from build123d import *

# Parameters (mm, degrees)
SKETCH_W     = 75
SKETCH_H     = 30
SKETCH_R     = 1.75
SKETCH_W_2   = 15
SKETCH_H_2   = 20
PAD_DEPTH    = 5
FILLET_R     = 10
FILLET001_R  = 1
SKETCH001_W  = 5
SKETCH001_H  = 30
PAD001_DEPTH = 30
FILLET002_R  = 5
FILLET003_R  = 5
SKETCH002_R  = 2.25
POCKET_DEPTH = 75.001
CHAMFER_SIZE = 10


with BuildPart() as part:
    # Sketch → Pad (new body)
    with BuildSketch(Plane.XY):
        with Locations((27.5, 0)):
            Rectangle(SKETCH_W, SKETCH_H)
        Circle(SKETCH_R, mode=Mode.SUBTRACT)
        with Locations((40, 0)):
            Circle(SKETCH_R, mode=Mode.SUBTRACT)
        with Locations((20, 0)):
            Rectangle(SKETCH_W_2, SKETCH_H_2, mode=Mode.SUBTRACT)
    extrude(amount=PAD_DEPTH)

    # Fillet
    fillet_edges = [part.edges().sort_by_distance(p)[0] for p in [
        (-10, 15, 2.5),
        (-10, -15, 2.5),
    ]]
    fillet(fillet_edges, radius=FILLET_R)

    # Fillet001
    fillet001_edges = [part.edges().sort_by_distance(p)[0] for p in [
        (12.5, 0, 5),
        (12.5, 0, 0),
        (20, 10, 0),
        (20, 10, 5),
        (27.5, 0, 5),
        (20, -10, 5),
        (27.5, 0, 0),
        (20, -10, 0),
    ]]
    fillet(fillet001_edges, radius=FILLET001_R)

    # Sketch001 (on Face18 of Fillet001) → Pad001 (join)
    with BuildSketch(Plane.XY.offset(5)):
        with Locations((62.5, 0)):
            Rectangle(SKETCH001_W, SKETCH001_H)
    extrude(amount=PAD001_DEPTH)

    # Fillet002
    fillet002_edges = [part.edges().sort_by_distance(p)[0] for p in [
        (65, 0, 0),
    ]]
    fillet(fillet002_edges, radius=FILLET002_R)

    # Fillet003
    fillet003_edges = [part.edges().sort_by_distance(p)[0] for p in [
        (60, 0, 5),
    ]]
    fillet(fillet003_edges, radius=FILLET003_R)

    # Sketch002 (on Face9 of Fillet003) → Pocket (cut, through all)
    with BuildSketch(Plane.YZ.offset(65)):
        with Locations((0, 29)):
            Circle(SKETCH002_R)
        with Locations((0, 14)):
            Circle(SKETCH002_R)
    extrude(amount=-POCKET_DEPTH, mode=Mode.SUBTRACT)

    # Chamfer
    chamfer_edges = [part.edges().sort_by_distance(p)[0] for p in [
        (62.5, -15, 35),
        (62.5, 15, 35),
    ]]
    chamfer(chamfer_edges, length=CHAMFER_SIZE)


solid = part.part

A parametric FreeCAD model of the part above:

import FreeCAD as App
import Part
import Sketcher
from FreeCAD import Vector
Q = App.Units.Quantity


def edges_at(feature, points):
    """Names of the edges that pass closest to the given points."""
    edges = feature.Shape.Edges
    near = lambda p: min(range(len(edges)), key=lambda i: edges[i].distToShape(Part.Vertex(*p))[0])
    return sorted({f"Edge{near(p) + 1}" for p in points})

doc = App.newDocument("Part")
params = doc.addObject("Spreadsheet::Sheet", "Params")
for row, (alias, value) in enumerate([
    ("sketch1_diameter", "3.5 mm"),
    ("sketch1_width", "75 mm"),
    ("sketch1_width2", "15 mm"),
    ("sketch1_height", "30 mm"),
    ("sketch1_height2", "20 mm"),
    ("pad1_length", "5 mm"),
    ("fillet_radius", "10 mm"),
    ("fillet2_radius", "1 mm"),
    ("sketch2_width", "5 mm"),
    ("sketch2_height", "30 mm"),
    ("pad2_length", "30 mm"),
    ("fillet3_radius", "5 mm"),
    ("fillet4_radius", "5 mm"),
    ("sketch3_diameter", "4.5 mm"),
    ("chamfer_size", "10 mm"),
], start=1):
    params.set(f"A{row}", alias)
    params.set(f"B{row}", "=" + value)
    params.setAlias(f"B{row}", alias)

body = doc.addObject("PartDesign::Body", "Body")

sketch1 = doc.addObject("Sketcher::SketchObject", "Sketch")
body.addObject(sketch1)
sketch1.AttachmentSupport = (doc.XY_Plane, [""])
sketch1.MapMode = "FlatFace"
sketch1.addGeometry([
    Part.LineSegment(Vector(-10, 15, 0), Vector(-10, -15, 0)),
    Part.LineSegment(Vector(-10, -15, 0), Vector(65, -15, 0)),
    Part.LineSegment(Vector(65, -15, 0), Vector(65, 15, 0)),
    Part.LineSegment(Vector(65, 15, 0), Vector(-10, 15, 0)),
    Part.Circle(Vector(0, 0, 0), Vector(0, 0, 1), 1.8),
    Part.LineSegment(Vector(27.5, -10, 0), Vector(12.5, -10, 0)),
    Part.LineSegment(Vector(12.5, -10, 0), Vector(12.5, 10, 0)),
    Part.LineSegment(Vector(12.5, 10, 0), Vector(27.5, 10, 0)),
    Part.LineSegment(Vector(27.5, 10, 0), Vector(27.5, -10, 0)),
    Part.Circle(Vector(40, 0, 0), Vector(0, 0, 1), 1.8),
], False)
sketch1.addConstraint([
    Sketcher.Constraint("Coincident", 0, 2, 1, 1),
    Sketcher.Constraint("Coincident", 1, 2, 2, 1),
    Sketcher.Constraint("Coincident", 2, 2, 3, 1),
    Sketcher.Constraint("Coincident", 3, 2, 0, 1),
    Sketcher.Constraint("Coincident", 5, 2, 6, 1),
    Sketcher.Constraint("Coincident", 6, 2, 7, 1),
    Sketcher.Constraint("Coincident", 7, 2, 8, 1),
    Sketcher.Constraint("Coincident", 8, 2, 5, 1),
    Sketcher.Constraint("Vertical", 0),
    Sketcher.Constraint("Horizontal", 1),
    Sketcher.Constraint("Vertical", 2),
    Sketcher.Constraint("Horizontal", 3),
    Sketcher.Constraint("Horizontal", 5),
    Sketcher.Constraint("Vertical", 6),
    Sketcher.Constraint("Horizontal", 7),
    Sketcher.Constraint("Vertical", 8),
    Sketcher.Constraint("Coincident", 4, 3, -1, 1),
    Sketcher.Constraint("Equal", 4, 9),
    Sketcher.Constraint("PointOnObject", 9, 3, -1),
    Sketcher.Constraint("Diameter", 4, Q("3.5 mm")),
    Sketcher.Constraint("DistanceX", 1, 1, 1, 2, Q("75 mm")),
    Sketcher.Constraint("DistanceX", 5, 2, 5, 1, Q("15 mm")),
    Sketcher.Constraint("DistanceY", 0, 2, 0, 1, Q("30 mm")),
    Sketcher.Constraint("DistanceY", 6, 1, 6, 2, Q("20 mm")),
    Sketcher.Constraint("DistanceX", -1, 1, 9, 3, Q("40 mm")),
    Sketcher.Constraint("DistanceX", 0, 2, -1, 1, Q("10 mm")),
    Sketcher.Constraint("DistanceY", 0, 2, -1, 1, Q("15 mm")),
    Sketcher.Constraint("DistanceY", 5, 2, -1, 1, Q("10 mm")),
    Sketcher.Constraint("DistanceX", -1, 1, 5, 2, Q("12.5 mm")),
])
sketch1.setExpression("Constraints[19]", "Params.sketch1_diameter")
sketch1.setExpression("Constraints[20]", "Params.sketch1_width")
sketch1.setExpression("Constraints[21]", "Params.sketch1_width2")
sketch1.setExpression("Constraints[22]", "Params.sketch1_height")
sketch1.setExpression("Constraints[23]", "Params.sketch1_height2")
pad1 = doc.addObject("PartDesign::Pad", "Pad")
body.addObject(pad1)
pad1.Profile = sketch1
pad1.setExpression("Length", "Params.pad1_length")
doc.recompute()

fillet = doc.addObject("PartDesign::Fillet", "Fillet")
body.addObject(fillet)
fillet.Base = (pad1, edges_at(pad1, [(-10, 15, 2.5), (-10, -15, 2.5)]))
fillet.setExpression("Radius", "Params.fillet_radius")
doc.recompute()

fillet2 = doc.addObject("PartDesign::Fillet", "Fillet001")
body.addObject(fillet2)
fillet2.Base = (fillet, edges_at(fillet, [
    (12.5, 0, 5),
    (12.5, 0, 0),
    (20, 10, 0),
    (20, 10, 5),
    (27.5, 0, 5),
    (20, -10, 5),
    (27.5, 0, 0),
    (20, -10, 0),
]))
fillet2.setExpression("Radius", "Params.fillet2_radius")

sketch2 = doc.addObject("Sketcher::SketchObject", "Sketch001")
body.addObject(sketch2)
sketch2.AttachmentSupport = (doc.XY_Plane, [""])
sketch2.MapMode = "FlatFace"
sketch2.AttachmentOffset = App.Placement(Vector(0, 0, 5), App.Rotation())
sketch2.addGeometry([
    Part.LineSegment(Vector(60, 15, 0), Vector(60, -15, 0)),
    Part.LineSegment(Vector(60, -15, 0), Vector(65, -15, 0)),
    Part.LineSegment(Vector(65, -15, 0), Vector(65, 15, 0)),
    Part.LineSegment(Vector(65, 15, 0), Vector(60, 15, 0)),
], False)
sketch2.addConstraint([
    Sketcher.Constraint("Coincident", 0, 2, 1, 1),
    Sketcher.Constraint("Coincident", 1, 2, 2, 1),
    Sketcher.Constraint("Coincident", 2, 2, 3, 1),
    Sketcher.Constraint("Coincident", 3, 2, 0, 1),
    Sketcher.Constraint("Vertical", 0),
    Sketcher.Constraint("Horizontal", 1),
    Sketcher.Constraint("Vertical", 2),
    Sketcher.Constraint("Horizontal", 3),
    Sketcher.Constraint("DistanceX", 1, 1, 1, 2, Q("5 mm")),
    Sketcher.Constraint("DistanceY", 0, 2, 0, 1, Q("30 mm")),
    Sketcher.Constraint("DistanceX", -1, 1, 0, 2, Q("60 mm")),
    Sketcher.Constraint("DistanceY", 0, 2, -1, 1, Q("15 mm")),
])
sketch2.setExpression("Constraints[8]", "Params.sketch2_width")
sketch2.setExpression("Constraints[9]", "Params.sketch2_height")
pad2 = doc.addObject("PartDesign::Pad", "Pad001")
body.addObject(pad2)
pad2.Profile = sketch2
pad2.setExpression("Length", "Params.pad2_length")
doc.recompute()

fillet3 = doc.addObject("PartDesign::Fillet", "Fillet002")
body.addObject(fillet3)
fillet3.Base = (pad2, edges_at(pad2, [(65, 0, 0)]))
fillet3.setExpression("Radius", "Params.fillet3_radius")
doc.recompute()

fillet4 = doc.addObject("PartDesign::Fillet", "Fillet003")
body.addObject(fillet4)
fillet4.Base = (fillet3, edges_at(fillet3, [(60, 0, 5)]))
fillet4.setExpression("Radius", "Params.fillet4_radius")

sketch3 = doc.addObject("Sketcher::SketchObject", "Sketch002")
body.addObject(sketch3)
sketch3.AttachmentSupport = (doc.YZ_Plane, [""])
sketch3.MapMode = "FlatFace"
sketch3.AttachmentOffset = App.Placement(Vector(0, 0, 65), App.Rotation())
sketch3.addGeometry([
    Part.Circle(Vector(0, 29, 0), Vector(0, 0, 1), 2.2),
    Part.Circle(Vector(0, 14, 0), Vector(0, 0, 1), 2.2),
], False)
sketch3.addConstraint([
    Sketcher.Constraint("Equal", 0, 1),
    Sketcher.Constraint("PointOnObject", 0, 3, -2),
    Sketcher.Constraint("PointOnObject", 1, 3, -2),
    Sketcher.Constraint("Diameter", 0, Q("4.5 mm")),
    Sketcher.Constraint("DistanceY", -1, 1, 0, 3, Q("29 mm")),
    Sketcher.Constraint("DistanceY", -1, 1, 1, 3, Q("14 mm")),
])
sketch3.setExpression("Constraints[3]", "Params.sketch3_diameter")
pocket1 = doc.addObject("PartDesign::Pocket", "Pocket")
body.addObject(pocket1)
pocket1.Profile = sketch3
pocket1.Type = "ThroughAll"
doc.recompute()

chamfer = doc.addObject("PartDesign::Chamfer", "Chamfer")
body.addObject(chamfer)
chamfer.Base = (pocket1, edges_at(pocket1, [(62.5, -15, 35), (62.5, 15, 35)]))
chamfer.setExpression("Size", "Params.chamfer_size")

doc.recompute()
